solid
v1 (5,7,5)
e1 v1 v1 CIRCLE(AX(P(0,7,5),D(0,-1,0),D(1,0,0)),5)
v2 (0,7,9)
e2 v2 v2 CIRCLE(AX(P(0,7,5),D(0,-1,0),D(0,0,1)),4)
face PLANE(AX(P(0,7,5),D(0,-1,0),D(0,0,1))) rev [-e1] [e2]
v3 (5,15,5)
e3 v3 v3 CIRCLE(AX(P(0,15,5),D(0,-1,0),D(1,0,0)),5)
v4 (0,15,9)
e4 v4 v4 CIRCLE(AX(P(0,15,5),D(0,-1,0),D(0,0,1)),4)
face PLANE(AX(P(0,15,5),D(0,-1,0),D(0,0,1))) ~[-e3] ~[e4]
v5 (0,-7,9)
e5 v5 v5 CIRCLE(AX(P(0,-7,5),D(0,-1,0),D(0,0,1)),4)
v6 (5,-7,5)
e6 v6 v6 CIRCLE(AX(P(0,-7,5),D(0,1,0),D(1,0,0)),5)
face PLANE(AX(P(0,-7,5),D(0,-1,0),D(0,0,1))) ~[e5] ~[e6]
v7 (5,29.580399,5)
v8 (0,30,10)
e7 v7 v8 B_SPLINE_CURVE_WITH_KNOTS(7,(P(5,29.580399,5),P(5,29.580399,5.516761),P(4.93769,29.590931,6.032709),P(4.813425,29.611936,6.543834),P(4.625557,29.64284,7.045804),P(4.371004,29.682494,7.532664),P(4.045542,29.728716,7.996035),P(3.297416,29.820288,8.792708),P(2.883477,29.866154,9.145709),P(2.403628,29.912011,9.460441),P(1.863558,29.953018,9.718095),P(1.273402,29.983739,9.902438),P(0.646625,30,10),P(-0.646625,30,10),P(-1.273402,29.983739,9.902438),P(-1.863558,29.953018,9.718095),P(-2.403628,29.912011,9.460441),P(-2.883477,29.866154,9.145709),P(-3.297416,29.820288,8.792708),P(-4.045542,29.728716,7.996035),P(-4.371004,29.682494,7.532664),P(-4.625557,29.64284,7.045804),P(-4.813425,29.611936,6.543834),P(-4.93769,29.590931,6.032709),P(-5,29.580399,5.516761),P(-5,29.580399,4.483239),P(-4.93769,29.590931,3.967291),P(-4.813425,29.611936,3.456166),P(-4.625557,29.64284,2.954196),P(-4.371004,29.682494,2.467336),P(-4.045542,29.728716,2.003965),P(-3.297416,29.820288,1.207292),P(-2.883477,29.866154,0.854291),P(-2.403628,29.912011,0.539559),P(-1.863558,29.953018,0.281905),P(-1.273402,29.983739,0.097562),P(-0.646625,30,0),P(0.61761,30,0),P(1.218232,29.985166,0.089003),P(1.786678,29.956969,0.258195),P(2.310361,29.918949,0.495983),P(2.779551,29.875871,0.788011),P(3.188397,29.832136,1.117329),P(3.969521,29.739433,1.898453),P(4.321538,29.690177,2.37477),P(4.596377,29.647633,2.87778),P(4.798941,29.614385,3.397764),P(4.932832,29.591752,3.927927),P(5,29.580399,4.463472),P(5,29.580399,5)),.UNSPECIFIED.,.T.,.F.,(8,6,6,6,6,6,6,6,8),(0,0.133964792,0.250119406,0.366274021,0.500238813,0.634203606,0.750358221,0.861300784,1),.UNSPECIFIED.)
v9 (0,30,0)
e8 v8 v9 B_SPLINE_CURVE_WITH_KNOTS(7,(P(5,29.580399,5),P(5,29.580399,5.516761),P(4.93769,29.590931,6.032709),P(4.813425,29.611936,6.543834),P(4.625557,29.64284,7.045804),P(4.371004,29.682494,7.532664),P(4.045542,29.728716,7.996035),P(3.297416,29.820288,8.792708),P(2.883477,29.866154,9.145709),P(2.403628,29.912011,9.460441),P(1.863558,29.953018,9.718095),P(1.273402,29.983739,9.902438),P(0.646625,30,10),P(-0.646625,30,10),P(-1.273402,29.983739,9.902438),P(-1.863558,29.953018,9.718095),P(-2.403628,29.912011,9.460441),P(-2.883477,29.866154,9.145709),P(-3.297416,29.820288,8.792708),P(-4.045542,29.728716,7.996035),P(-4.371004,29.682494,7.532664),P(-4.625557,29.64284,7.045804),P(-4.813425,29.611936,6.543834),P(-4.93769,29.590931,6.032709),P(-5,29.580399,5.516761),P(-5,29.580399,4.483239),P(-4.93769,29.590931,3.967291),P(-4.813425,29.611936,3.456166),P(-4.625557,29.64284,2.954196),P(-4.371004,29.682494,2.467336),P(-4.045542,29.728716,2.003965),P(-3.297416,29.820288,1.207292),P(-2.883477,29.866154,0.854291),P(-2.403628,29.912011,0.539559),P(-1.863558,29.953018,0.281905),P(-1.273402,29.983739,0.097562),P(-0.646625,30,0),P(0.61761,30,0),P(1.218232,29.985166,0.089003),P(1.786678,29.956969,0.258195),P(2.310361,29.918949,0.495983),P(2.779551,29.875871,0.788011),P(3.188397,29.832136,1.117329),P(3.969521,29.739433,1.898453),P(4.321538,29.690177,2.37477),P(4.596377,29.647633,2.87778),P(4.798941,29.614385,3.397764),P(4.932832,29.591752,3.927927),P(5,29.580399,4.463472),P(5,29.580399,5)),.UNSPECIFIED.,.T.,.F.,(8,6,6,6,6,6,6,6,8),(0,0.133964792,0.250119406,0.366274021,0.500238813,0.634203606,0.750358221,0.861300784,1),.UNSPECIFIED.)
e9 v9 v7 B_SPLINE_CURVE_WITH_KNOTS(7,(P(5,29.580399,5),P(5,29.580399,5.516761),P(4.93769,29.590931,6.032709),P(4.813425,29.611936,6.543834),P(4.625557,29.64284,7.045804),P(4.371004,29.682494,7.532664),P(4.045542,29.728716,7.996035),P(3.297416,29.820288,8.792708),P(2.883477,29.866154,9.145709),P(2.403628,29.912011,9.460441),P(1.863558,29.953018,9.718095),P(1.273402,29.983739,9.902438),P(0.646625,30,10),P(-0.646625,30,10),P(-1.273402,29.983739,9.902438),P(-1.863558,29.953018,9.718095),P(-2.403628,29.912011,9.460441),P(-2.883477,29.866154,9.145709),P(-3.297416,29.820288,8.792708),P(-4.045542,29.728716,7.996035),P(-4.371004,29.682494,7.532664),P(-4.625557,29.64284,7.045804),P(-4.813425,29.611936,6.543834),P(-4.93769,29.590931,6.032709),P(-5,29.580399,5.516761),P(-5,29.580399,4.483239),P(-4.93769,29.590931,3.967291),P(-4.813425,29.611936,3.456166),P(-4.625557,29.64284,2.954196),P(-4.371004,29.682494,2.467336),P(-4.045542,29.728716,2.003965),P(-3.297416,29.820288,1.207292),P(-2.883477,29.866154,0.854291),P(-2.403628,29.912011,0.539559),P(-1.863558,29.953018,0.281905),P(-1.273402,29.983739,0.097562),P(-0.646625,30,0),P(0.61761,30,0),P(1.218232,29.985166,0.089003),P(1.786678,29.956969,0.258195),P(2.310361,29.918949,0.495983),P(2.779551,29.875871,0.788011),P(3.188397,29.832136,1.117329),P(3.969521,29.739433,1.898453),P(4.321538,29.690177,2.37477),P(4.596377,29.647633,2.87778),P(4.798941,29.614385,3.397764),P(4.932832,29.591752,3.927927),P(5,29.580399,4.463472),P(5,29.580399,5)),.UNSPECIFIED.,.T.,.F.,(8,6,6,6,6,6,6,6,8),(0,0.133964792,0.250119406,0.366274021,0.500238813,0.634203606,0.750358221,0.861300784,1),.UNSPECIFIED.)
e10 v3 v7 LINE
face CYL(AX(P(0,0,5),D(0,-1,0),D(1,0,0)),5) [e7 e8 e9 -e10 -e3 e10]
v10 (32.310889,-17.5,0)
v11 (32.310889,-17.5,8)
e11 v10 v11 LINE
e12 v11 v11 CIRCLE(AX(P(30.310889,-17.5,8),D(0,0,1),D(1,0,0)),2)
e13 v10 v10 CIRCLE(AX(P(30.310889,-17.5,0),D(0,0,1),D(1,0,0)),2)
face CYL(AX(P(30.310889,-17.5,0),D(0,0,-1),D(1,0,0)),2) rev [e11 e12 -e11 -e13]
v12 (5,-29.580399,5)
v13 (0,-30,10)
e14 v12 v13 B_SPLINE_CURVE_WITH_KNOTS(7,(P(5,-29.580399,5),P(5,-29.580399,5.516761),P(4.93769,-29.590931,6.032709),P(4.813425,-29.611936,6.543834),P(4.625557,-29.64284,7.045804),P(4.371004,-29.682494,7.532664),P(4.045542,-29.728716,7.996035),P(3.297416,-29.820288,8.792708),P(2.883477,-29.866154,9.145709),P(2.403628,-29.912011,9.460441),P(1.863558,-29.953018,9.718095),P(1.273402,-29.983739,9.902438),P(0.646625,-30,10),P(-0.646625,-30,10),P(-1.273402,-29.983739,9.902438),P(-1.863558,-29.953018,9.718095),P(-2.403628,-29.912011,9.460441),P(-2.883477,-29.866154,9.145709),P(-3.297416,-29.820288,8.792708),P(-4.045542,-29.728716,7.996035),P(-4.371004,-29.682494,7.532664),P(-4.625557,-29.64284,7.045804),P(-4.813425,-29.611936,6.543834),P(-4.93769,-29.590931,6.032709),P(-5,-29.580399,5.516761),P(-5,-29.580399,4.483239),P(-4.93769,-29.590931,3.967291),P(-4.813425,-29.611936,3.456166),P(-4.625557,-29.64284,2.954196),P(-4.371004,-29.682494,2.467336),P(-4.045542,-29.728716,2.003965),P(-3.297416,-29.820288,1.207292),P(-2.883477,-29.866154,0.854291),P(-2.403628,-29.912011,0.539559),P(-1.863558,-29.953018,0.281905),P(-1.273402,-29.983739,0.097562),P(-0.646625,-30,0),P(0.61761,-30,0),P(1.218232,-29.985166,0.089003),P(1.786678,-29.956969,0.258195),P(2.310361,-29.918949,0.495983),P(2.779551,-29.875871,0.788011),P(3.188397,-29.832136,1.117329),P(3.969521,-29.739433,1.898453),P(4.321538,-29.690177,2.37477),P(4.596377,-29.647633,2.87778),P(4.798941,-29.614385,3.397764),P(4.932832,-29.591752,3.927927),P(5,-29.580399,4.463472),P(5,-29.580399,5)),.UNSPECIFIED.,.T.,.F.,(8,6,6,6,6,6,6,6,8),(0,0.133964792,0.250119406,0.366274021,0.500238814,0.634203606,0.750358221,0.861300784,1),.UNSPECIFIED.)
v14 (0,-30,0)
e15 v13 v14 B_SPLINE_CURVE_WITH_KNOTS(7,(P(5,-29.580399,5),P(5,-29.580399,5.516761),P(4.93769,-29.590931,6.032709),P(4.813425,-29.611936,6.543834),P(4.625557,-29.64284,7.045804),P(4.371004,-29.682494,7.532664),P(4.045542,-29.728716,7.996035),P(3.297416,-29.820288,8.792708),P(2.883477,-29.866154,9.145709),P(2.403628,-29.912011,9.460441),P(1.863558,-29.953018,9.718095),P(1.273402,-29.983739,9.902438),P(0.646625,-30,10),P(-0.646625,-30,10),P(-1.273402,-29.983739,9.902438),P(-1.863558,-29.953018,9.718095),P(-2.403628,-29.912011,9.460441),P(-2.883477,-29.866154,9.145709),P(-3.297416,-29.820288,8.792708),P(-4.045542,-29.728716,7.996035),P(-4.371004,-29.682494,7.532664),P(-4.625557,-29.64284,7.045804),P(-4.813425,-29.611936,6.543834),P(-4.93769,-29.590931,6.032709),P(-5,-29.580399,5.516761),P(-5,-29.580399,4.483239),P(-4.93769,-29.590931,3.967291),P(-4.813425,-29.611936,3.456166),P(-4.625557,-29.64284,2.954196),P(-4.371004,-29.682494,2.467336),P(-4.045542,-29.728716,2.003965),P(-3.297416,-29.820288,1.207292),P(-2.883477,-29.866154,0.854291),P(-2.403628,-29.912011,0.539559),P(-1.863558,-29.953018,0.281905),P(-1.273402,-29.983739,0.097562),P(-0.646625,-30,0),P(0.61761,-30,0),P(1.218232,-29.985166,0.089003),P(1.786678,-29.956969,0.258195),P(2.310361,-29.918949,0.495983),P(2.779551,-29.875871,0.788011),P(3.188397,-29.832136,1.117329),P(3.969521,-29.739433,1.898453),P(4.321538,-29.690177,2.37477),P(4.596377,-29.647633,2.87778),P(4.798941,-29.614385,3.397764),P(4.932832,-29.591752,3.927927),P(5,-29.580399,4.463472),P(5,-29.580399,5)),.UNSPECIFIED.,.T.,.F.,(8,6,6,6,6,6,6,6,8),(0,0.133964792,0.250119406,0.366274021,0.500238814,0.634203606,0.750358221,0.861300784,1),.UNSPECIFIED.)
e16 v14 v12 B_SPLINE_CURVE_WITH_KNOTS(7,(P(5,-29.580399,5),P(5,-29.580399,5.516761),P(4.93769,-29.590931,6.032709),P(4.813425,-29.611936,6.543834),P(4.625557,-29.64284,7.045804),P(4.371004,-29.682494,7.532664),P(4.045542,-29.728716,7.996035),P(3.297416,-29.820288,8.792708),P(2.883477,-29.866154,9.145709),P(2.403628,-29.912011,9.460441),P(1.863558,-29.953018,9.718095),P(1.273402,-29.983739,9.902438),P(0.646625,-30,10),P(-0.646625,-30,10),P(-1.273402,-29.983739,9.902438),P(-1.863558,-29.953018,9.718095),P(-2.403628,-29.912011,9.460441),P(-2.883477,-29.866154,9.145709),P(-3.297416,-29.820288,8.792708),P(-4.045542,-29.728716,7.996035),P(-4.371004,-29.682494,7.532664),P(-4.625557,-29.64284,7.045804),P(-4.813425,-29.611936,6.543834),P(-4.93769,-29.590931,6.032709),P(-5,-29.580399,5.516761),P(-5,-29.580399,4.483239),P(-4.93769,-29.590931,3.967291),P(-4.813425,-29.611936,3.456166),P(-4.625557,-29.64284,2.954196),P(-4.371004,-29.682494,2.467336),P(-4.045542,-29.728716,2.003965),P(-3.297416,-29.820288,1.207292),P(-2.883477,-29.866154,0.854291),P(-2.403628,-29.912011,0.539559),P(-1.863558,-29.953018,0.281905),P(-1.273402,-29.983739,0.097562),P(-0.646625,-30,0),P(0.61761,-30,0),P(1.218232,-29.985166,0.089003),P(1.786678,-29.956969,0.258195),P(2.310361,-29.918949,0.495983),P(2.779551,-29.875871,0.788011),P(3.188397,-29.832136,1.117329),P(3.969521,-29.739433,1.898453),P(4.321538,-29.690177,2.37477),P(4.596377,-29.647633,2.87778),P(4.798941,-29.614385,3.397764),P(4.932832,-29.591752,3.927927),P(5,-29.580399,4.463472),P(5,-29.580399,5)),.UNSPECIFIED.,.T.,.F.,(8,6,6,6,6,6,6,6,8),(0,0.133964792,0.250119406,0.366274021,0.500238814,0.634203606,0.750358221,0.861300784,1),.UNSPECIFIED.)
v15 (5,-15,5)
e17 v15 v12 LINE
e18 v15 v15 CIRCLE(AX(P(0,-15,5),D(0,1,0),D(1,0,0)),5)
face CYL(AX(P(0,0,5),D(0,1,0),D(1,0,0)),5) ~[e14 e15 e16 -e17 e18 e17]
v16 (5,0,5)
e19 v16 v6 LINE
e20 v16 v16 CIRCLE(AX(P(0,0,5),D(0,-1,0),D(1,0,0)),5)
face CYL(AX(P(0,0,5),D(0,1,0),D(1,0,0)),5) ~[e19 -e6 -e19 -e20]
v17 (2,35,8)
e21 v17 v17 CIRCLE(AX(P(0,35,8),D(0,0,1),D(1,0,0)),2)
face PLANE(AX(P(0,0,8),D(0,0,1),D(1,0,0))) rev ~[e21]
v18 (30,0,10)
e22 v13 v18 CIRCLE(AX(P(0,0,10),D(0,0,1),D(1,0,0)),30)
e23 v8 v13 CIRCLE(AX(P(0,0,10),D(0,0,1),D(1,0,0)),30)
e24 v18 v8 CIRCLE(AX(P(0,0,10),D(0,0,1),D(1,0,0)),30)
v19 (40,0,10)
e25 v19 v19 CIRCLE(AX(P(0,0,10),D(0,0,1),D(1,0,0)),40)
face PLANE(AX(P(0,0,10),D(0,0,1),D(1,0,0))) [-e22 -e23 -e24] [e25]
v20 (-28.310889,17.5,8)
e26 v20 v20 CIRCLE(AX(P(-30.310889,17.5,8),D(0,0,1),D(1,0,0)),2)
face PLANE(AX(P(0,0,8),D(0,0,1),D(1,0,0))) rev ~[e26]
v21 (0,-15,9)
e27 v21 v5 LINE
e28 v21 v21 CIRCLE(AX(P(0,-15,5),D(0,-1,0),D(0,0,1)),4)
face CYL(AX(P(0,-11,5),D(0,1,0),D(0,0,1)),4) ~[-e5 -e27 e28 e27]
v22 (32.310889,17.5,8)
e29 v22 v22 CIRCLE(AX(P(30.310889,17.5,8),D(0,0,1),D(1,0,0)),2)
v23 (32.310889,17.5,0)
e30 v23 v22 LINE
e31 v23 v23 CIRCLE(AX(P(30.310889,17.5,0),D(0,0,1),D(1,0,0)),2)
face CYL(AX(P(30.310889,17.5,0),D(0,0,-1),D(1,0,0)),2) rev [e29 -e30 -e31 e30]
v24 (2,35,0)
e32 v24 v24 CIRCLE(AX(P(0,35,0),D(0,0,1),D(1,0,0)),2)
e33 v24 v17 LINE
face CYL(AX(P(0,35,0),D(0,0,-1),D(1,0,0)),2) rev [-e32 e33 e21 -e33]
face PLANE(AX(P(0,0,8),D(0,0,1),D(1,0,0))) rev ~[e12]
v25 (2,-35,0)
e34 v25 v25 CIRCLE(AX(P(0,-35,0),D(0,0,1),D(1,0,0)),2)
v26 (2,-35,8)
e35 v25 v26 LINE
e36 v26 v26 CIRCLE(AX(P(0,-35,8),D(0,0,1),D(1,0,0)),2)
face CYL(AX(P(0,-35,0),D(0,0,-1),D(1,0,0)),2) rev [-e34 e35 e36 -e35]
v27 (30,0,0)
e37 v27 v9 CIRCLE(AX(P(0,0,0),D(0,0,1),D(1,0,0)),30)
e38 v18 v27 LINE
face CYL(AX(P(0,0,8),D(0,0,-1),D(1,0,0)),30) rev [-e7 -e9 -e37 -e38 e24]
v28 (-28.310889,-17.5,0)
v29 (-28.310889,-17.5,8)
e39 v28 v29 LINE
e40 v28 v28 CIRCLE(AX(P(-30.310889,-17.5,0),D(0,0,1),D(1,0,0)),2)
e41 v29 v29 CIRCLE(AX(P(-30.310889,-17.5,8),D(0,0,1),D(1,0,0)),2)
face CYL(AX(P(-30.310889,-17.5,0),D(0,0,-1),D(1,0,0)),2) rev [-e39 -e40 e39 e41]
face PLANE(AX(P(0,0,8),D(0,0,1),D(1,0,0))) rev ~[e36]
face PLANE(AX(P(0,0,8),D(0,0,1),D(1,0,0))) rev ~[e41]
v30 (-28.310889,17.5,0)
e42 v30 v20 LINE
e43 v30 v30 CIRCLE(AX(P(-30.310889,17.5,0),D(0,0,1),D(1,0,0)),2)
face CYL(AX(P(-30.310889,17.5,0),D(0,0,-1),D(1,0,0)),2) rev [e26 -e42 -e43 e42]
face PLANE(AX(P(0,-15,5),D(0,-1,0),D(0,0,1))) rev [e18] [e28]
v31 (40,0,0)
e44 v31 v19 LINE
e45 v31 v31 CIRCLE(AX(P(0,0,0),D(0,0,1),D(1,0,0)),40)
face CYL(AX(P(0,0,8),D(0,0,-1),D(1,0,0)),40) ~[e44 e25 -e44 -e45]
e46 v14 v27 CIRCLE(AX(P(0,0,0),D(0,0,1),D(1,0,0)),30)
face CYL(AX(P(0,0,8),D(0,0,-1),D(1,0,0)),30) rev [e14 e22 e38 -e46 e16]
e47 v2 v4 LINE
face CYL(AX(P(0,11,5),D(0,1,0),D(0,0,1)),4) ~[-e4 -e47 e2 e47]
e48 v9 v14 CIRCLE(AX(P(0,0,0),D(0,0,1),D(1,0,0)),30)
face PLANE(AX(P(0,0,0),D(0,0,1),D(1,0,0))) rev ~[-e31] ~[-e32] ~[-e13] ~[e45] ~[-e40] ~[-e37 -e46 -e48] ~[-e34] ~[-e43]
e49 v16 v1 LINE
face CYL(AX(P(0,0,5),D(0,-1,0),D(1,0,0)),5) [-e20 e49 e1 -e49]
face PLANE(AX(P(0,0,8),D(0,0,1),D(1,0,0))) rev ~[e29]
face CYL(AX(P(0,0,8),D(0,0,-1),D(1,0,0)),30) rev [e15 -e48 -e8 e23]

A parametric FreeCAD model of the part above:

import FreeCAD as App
import Part
import Sketcher
Q = App.Units.Quantity

doc = App.newDocument("Part")
body = doc.addObject("PartDesign::Body", "Body")

sketch1 = body.newObject("Sketcher::SketchObject", "Sketch")
sketch1.AttachmentSupport = (doc.getObject("XY_Plane"), [""])
sketch1.MapMode = "FlatFace"
sketch1.addGeometry(Part.Circle(App.Vector(0, 0, 0), App.Vector(0, 0, 1), 40), False)
sketch1.addGeometry(Part.Circle(App.Vector(0, -35, 0), App.Vector(0, 0, 1), 2), False)
sketch1.addGeometry(Part.Circle(App.Vector(-30.3, -17.5, 0), App.Vector(0, 0, 1), 2), False)
sketch1.addGeometry(Part.Circle(App.Vector(30.3, -17.5, 0), App.Vector(0, 0, 1), 2), False)
sketch1.addGeometry(Part.Circle(App.Vector(-30.3, 17.5, 0), App.Vector(0, 0, 1), 2), False)
sketch1.addGeometry(Part.Circle(App.Vector(0, 35, 0), App.Vector(0, 0, 1), 2), False)
sketch1.addGeometry(Part.Circle(App.Vector(0, 0, 0), App.Vector(0, 0, 1), 30), False)
sketch1.addGeometry(Part.Circle(App.Vector(30.3, 17.5, 0), App.Vector(0, 0, 1), 2), False)
sketch1.addConstraint(Sketcher.Constraint("Coincident", 0, 3, -1, 1))
sketch1.addConstraint(Sketcher.Constraint("Coincident", 6, 3, -1, 1))
sketch1.addConstraint(Sketcher.Constraint("Equal", 1, 2))
sketch1.addConstraint(Sketcher.Constraint("Equal", 2, 3))
sketch1.addConstraint(Sketcher.Constraint("Equal", 3, 4))
sketch1.addConstraint(Sketcher.Constraint("Equal", 4, 5))
sketch1.addConstraint(Sketcher.Constraint("Equal", 5, 7))
sketch1.addConstraint(Sketcher.Constraint("Symmetric", 3, 3, 4, 3, -1, 1))
sketch1.addConstraint(Sketcher.Constraint("Symmetric", 1, 3, 5, 3, -1, 1))
sketch1.addConstraint(Sketcher.Constraint("Symmetric", 2, 3, 7, 3, -1, 1))
sketch1.addConstraint(Sketcher.Constraint("Symmetric", 2, 3, 3, 3, -2))
sketch1.addConstraint(Sketcher.Constraint("PointOnObject", 1, 3, -2))
sketch1.addConstraint(Sketcher.Constraint("Diameter", 0, Q("80 mm")))
sketch1.addConstraint(Sketcher.Constraint("Diameter", 1, Q("4 mm")))
sketch1.addConstraint(Sketcher.Constraint("Diameter", 6, Q("60 mm")))
sketch1.addConstraint(Sketcher.Constraint("DistanceY", 1, 3, -1, 1, Q("35 mm")))
sketch1.addConstraint(Sketcher.Constraint("DistanceY", 2, 3, 4, 3, Q("35 mm")))
sketch1.addConstraint(Sketcher.Constraint("DistanceX", 2, 3, -1, 1, Q("30.310889 mm")))
pad1 = body.newObject("PartDesign::Pad", "Pad")
pad1.Profile = sketch1
pad1.Length = 8

sketch2 = body.newObject("Sketcher::SketchObject", "Sketch001")
sketch2.AttachmentSupport = (doc.getObject("XY_Plane"), [""])
sketch2.MapMode = "FlatFace"
sketch2.AttachmentOffset = App.Placement(App.Vector(0, 0, 8), App.Rotation())
sketch2.addGeometry(Part.Circle(App.Vector(0, 0, 0), App.Vector(0, 0, 1), 40), False)
sketch2.addGeometry(Part.Circle(App.Vector(0, 0, 0), App.Vector(0, 0, 1), 30), False)
sketch2.addConstraint(Sketcher.Constraint("Coincident", 0, 3, -1, 1))
sketch2.addConstraint(Sketcher.Constraint("Coincident", 1, 3, -1, 1))
sketch2.addConstraint(Sketcher.Constraint("Diameter", 0, Q("80 mm")))
sketch2.addConstraint(Sketcher.Constraint("Diameter", 1, Q("60 mm")))
pad2 = body.newObject("PartDesign::Pad", "Pad001")
pad2.Profile = sketch2
pad2.Length = 2

sketch3 = body.newObject("Sketcher::SketchObject", "Sketch002")
sketch3.AttachmentSupport = (doc.getObject("XZ_Plane"), [""])
sketch3.MapMode = "FlatFace"
sketch3.addGeometry(Part.Circle(App.Vector(0, 5, 0), App.Vector(0, 0, 1), 5), False)
sketch3.addConstraint(Sketcher.Constraint("PointOnObject", 0, 3, -2))
sketch3.addConstraint(Sketcher.Constraint("Diameter", 0, Q("10 mm")))
sketch3.addConstraint(Sketcher.Constraint("DistanceY", -1, 1, 0, 3, Q("5 mm")))
pad3 = body.newObject("PartDesign::Pad", "Pad002")
pad3.Profile = sketch3
pad3.Type = "TwoLengths"
pad3.Length = 30
pad3.Length2 = 30

sketch4 = body.newObject("Sketcher::SketchObject", "Sketch003")
sketch4.AttachmentSupport = (doc.getObject("YZ_Plane"), [""])
sketch4.MapMode = "FlatFace"
sketch4.addGeometry(Part.LineSegment(App.Vector(7, 10, 0), App.Vector(7, 9, 0)), False)
sketch4.addGeometry(Part.LineSegment(App.Vector(7, 9, 0), App.Vector(15, 9, 0)), False)
sketch4.addGeometry(Part.LineSegment(App.Vector(15, 9, 0), App.Vector(15, 10, 0)), False)
sketch4.addGeometry(Part.LineSegment(App.Vector(15, 10, 0), App.Vector(7, 10, 0)), False)
sketch4.addGeometry(Part.LineSegment(App.Vector(-15, 10, 0), App.Vector(-15, 9, 0)), False)
sketch4.addGeometry(Part.LineSegment(App.Vector(-15, 9, 0), App.Vector(-7, 9, 0)), False)
sketch4.addGeometry(Part.LineSegment(App.Vector(-7, 9, 0), App.Vector(-7, 10, 0)), False)
sketch4.addGeometry(Part.LineSegment(App.Vector(-7, 10, 0), App.Vector(-15, 10, 0)), False)
sketch4.addGeometry(Part.LineSegment(App.Vector(15, 5, 0), App.Vector(-15, 5, 0)), True)
sketch4.addConstraint(Sketcher.Constraint("Coincident", 0, 2, 1, 1))
sketch4.addConstraint(Sketcher.Constraint("Coincident", 1, 2, 2, 1))
sketch4.addConstraint(Sketcher.Constraint("Coincident", 2, 2, 3, 1))
sketch4.addConstraint(Sketcher.Constraint("Coincident", 3, 2, 0, 1))
sketch4.addConstraint(Sketcher.Constraint("Coincident", 4, 2, 5, 1))
sketch4.addConstraint(Sketcher.Constraint("Coincident", 5, 2, 6, 1))
sketch4.addConstraint(Sketcher.Constraint("Coincident", 6, 2, 7, 1))
sketch4.addConstraint(Sketcher.Constraint("Coincident", 7, 2, 4, 1))
sketch4.addConstraint(Sketcher.Constraint("Vertical", 0))
sketch4.addConstraint(Sketcher.Constraint("Horizontal", 1))
sketch4.addConstraint(Sketcher.Constraint("Vertical", 2))
sketch4.addConstraint(Sketcher.Constraint("Horizontal", 3))
sketch4.addConstraint(Sketcher.Constraint("Vertical", 4))
sketch4.addConstraint(Sketcher.Constraint("Horizontal", 5))
sketch4.addConstraint(Sketcher.Constraint("Vertical", 6))
sketch4.addConstraint(Sketcher.Constraint("Horizontal", 7))
sketch4.addConstraint(Sketcher.Constraint("Horizontal", 8))
sketch4.addConstraint(Sketcher.Constraint("Symmetric", 1, 2, 4, 2, -2))
sketch4.addConstraint(Sketcher.Constraint("Symmetric", 3, 2, 6, 2, -2))
sketch4.addConstraint(Sketcher.Constraint("Vertical", 2, 2, 8, 1))
sketch4.addConstraint(Sketcher.Constraint("Vertical", 7, 2, 8, 2))
sketch4.addConstraint(Sketcher.Constraint("DistanceX", 1, 1, 1, 2, Q("8 mm")))
sketch4.addConstraint(Sketcher.Constraint("DistanceX", 8, 2, 8, 1, Q("30 mm")))
sketch4.addConstraint(Sketcher.Constraint("DistanceY", 0, 2, 0, 1, Q("1 mm")))
sketch4.addConstraint(Sketcher.Constraint("DistanceY", -1, 1, 0, 2, Q("9 mm")))
sketch4.addConstraint(Sketcher.Constraint("DistanceY", -1, 1, 8, 1, Q("5 mm")))
groove = body.newObject("PartDesign::Groove", "Groove")
groove.Profile = sketch4
groove.ReferenceAxis = (sketch4, ["Axis0"])
groove.Angle = 360

doc.recompute()
